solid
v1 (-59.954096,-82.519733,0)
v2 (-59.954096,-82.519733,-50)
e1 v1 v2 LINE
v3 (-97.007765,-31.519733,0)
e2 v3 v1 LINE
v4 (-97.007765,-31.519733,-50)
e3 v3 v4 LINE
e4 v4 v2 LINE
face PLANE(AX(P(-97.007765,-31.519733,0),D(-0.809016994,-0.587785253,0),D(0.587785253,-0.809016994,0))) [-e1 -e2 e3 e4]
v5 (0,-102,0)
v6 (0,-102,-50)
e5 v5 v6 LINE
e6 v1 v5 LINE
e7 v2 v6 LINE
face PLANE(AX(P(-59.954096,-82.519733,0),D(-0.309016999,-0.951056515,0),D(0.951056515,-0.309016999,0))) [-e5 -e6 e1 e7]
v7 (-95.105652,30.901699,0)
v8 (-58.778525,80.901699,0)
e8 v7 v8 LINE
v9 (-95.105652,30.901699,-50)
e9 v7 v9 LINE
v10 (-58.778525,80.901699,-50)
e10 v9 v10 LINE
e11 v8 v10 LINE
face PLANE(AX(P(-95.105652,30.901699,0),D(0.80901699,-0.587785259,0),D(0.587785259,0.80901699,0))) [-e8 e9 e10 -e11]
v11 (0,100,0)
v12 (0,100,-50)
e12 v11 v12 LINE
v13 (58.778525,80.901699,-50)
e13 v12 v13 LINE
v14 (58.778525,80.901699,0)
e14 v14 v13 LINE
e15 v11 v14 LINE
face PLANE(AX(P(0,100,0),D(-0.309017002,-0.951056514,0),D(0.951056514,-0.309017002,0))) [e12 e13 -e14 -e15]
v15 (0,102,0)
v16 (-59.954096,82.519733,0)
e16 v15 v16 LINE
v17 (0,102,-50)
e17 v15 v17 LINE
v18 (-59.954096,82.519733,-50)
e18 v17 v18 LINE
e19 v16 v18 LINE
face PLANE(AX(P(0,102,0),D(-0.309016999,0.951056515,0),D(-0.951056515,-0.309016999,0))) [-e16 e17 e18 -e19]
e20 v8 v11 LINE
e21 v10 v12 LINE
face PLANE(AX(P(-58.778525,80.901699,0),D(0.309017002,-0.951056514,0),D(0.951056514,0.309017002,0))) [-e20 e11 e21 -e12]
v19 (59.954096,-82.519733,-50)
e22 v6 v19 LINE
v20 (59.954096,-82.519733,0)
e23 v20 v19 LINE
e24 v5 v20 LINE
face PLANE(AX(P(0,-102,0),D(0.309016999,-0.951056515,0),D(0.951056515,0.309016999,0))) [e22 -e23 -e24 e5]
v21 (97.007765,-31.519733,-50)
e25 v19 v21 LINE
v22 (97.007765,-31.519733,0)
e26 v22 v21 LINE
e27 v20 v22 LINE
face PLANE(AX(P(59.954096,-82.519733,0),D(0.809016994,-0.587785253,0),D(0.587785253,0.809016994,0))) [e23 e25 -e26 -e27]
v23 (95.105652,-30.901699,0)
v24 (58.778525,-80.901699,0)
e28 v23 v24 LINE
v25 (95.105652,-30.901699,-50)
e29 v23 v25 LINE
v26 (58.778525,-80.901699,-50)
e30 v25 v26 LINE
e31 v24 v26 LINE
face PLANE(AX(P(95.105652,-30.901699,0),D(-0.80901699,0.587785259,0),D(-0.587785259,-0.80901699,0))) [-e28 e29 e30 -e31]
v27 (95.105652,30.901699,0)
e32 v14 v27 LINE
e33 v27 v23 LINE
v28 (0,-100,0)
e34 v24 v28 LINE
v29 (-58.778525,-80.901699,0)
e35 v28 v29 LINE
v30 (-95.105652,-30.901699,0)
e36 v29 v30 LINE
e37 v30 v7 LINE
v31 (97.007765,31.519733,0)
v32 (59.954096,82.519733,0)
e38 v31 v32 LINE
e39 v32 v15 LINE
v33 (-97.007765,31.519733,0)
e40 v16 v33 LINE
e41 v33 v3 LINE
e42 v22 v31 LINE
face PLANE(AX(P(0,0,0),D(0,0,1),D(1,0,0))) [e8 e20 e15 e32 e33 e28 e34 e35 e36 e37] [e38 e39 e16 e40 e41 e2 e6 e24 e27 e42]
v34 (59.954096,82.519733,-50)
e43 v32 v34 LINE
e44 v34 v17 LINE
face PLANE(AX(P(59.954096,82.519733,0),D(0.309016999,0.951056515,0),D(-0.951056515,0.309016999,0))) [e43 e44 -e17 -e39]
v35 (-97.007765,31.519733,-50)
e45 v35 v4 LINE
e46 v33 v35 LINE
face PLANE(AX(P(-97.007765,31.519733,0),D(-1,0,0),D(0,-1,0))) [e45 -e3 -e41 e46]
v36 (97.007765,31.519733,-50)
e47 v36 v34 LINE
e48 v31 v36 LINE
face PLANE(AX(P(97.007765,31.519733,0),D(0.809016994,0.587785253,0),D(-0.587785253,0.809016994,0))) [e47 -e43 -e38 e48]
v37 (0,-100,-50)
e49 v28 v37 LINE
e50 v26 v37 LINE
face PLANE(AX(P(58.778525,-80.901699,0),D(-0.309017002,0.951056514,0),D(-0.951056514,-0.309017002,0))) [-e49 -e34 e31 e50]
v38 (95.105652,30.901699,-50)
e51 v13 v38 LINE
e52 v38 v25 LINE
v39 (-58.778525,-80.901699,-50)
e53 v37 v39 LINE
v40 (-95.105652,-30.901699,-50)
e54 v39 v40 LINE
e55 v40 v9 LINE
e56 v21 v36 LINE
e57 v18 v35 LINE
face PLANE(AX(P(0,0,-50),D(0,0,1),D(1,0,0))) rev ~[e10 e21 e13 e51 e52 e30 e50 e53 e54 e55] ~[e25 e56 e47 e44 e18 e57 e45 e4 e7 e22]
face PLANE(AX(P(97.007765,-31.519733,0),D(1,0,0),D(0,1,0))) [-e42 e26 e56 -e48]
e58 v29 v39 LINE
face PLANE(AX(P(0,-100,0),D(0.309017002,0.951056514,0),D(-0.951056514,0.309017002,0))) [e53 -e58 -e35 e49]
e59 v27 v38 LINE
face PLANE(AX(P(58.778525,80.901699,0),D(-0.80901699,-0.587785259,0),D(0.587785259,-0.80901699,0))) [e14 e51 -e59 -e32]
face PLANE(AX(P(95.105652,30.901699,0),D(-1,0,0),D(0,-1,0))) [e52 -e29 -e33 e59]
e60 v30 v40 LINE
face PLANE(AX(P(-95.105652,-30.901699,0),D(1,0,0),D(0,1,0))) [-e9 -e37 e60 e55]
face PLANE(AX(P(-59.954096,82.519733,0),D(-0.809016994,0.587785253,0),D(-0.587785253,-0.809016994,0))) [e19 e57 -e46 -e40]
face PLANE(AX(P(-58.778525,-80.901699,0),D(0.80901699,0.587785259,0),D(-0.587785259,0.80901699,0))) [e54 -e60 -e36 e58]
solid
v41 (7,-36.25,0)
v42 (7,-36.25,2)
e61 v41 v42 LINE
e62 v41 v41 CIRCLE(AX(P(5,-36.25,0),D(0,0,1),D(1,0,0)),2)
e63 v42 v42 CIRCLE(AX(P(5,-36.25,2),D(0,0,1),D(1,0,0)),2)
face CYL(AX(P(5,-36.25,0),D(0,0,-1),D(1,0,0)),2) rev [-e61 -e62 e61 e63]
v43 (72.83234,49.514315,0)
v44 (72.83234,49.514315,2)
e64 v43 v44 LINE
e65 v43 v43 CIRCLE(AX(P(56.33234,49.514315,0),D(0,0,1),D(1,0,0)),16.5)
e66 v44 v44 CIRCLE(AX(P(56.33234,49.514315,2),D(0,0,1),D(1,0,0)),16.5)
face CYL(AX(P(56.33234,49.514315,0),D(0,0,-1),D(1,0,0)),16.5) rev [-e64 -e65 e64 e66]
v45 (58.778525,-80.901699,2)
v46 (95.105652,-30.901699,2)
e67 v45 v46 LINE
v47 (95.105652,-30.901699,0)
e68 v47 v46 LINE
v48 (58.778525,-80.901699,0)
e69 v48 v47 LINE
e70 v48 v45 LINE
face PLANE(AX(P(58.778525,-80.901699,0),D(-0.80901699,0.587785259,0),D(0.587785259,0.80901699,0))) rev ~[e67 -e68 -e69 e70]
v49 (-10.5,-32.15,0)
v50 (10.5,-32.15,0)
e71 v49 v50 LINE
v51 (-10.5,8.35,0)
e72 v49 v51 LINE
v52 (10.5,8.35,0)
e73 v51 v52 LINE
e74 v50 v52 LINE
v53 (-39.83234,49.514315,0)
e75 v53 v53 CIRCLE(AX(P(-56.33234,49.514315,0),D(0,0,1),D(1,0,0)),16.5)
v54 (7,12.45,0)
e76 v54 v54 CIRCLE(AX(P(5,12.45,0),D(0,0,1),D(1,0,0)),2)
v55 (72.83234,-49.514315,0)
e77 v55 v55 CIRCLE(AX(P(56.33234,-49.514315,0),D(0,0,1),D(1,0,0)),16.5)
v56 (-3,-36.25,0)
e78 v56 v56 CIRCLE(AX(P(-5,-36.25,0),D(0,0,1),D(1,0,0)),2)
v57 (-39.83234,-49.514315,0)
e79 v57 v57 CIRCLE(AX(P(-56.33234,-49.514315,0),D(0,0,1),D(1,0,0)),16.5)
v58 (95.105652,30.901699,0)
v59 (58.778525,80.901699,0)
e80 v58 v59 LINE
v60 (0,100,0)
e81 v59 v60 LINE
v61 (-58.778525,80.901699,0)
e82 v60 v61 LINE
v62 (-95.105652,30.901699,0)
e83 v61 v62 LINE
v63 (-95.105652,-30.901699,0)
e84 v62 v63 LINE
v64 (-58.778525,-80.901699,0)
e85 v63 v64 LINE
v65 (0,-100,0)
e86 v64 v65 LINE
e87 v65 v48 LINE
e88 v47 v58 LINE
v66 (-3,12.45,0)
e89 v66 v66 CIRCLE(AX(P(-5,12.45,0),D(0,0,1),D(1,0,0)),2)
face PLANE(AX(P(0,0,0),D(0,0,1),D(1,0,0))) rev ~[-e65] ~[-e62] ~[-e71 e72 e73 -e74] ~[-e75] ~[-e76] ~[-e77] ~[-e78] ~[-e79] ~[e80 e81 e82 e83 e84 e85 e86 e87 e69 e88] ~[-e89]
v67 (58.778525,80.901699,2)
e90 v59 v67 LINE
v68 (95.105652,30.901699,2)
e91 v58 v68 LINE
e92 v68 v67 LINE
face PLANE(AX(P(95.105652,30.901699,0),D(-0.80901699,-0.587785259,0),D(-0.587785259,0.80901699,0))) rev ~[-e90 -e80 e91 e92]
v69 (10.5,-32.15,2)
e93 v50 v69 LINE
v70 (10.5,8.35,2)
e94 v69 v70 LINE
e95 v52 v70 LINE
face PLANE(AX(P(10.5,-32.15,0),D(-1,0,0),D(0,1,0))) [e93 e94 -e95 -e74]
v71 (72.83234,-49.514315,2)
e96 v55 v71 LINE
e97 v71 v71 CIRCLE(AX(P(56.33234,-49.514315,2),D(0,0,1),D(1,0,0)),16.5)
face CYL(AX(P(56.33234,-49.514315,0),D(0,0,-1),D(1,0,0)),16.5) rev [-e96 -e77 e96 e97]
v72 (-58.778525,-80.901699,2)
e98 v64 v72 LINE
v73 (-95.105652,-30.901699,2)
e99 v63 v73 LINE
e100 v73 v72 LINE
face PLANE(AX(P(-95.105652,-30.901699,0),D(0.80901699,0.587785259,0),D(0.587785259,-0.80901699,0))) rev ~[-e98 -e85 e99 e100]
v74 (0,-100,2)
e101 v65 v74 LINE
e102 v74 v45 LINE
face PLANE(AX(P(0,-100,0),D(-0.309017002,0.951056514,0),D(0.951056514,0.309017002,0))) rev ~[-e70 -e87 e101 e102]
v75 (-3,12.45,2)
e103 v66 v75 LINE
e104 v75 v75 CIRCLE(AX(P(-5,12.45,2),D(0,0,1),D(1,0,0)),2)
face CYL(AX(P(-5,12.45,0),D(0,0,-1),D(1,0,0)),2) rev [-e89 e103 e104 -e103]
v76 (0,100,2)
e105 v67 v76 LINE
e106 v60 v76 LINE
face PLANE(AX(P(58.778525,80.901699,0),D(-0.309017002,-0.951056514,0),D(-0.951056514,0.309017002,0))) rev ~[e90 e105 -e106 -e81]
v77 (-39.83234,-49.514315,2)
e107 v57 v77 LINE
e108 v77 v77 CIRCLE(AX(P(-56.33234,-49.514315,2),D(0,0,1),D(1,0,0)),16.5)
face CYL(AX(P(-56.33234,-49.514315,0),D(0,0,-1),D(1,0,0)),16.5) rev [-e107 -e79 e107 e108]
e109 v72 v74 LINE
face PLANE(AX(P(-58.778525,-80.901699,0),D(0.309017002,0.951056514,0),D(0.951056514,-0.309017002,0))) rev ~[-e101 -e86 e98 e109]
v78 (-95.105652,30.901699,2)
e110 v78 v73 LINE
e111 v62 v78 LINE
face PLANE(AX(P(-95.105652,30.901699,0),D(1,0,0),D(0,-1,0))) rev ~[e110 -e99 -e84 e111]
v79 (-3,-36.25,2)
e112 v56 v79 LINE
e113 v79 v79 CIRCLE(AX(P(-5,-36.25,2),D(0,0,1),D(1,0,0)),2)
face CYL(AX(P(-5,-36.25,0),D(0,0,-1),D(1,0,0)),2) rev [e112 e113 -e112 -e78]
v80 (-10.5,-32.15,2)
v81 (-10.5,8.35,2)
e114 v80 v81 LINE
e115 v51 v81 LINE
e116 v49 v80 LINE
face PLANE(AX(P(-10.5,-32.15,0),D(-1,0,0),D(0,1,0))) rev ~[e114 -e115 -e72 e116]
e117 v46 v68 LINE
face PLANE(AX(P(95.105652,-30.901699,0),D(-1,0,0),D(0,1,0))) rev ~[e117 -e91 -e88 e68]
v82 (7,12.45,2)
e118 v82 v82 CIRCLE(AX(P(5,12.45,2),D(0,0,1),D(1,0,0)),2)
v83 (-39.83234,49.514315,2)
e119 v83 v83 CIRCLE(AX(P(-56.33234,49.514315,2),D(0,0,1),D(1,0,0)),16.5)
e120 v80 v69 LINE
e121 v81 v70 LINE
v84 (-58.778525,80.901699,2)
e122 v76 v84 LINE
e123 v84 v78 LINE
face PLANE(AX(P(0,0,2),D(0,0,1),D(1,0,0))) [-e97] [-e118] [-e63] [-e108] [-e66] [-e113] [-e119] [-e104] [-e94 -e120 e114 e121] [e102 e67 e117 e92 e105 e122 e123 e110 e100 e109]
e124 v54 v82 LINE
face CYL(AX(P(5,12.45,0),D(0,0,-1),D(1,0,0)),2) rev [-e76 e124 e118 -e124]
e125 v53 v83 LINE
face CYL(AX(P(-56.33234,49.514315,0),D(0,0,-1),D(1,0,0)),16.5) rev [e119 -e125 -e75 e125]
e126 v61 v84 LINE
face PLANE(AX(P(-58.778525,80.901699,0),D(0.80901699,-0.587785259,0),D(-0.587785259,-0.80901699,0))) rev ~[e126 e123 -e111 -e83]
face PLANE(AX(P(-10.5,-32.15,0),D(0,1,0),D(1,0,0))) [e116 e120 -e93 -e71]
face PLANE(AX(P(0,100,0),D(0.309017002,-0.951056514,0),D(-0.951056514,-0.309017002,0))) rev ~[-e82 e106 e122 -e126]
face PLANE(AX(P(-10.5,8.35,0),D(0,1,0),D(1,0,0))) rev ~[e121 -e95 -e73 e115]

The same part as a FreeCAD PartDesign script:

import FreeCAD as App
import Part
import Sketcher

V = App.Vector
Q = App.Units.Quantity

doc = App.newDocument("Part")
body = doc.addObject("PartDesign::Body", "Body")

sketch1 = body.newObject("Sketcher::SketchObject", "Sketch")
sketch1.AttachmentSupport = (doc.getObject("XY_Plane"), [""])
sketch1.MapMode = "FlatFace"
sketch1.addGeometry([
    Part.LineSegment(V(58.8, 80.9, 0), V(0, 100, 0)),
    Part.LineSegment(V(0, 100, 0), V(-58.8, 80.9, 0)),
    Part.LineSegment(V(-58.8, 80.9, 0), V(-95.1, 30.9, 0)),
    Part.LineSegment(V(-95.1, 30.9, 0), V(-95.1, -30.9, 0)),
    Part.LineSegment(V(-95.1, -30.9, 0), V(-58.8, -80.9, 0)),
    Part.LineSegment(V(-58.8, -80.9, 0), V(0, -100, 0)),
    Part.LineSegment(V(0, -100, 0), V(58.8, -80.9, 0)),
    Part.LineSegment(V(58.8, -80.9, 0), V(95.1, -30.9, 0)),
    Part.LineSegment(V(95.1, -30.9, 0), V(95.1, 30.9, 0)),
    Part.LineSegment(V(95.1, 30.9, 0), V(58.8, 80.9, 0)),
    Part.Circle(V(-56.3, -49.5, 0), V(0, 0, 1), 16.5),
    Part.Circle(V(-5, -36.2, 0), V(0, 0, 1), 2),
    Part.LineSegment(V(10.5, -32.1, 0), V(-10.5, -32.1, 0)),
    Part.LineSegment(V(-10.5, -32.1, 0), V(-10.5, 8.3, 0)),
    Part.LineSegment(V(-10.5, 8.3, 0), V(10.5, 8.3, 0)),
    Part.LineSegment(V(10.5, 8.3, 0), V(10.5, -32.1, 0)),
    Part.Circle(V(5, -36.2, 0), V(0, 0, 1), 2),
    Part.Circle(V(56.3, -49.5, 0), V(0, 0, 1), 16.5),
    Part.Circle(V(-5, 12.4, 0), V(0, 0, 1), 2),
    Part.Circle(V(-56.3, 49.5, 0), V(0, 0, 1), 16.5),
    Part.Circle(V(5, 12.4, 0), V(0, 0, 1), 2),
    Part.Circle(V(56.3, 49.5, 0), V(0, 0, 1), 16.5),
], False)
sketch1.addConstraint([
    Sketcher.Constraint("Coincident", 0, 2, 1, 1),
    Sketcher.Constraint("Coincident", 1, 2, 2, 1),
    Sketcher.Constraint("Coincident", 2, 2, 3, 1),
    Sketcher.Constraint("Coincident", 3, 2, 4, 1),
    Sketcher.Constraint("Coincident", 4, 2, 5, 1),
    Sketcher.Constraint("Coincident", 5, 2, 6, 1),
    Sketcher.Constraint("Coincident", 6, 2, 7, 1),
    Sketcher.Constraint("Coincident", 7, 2, 8, 1),
    Sketcher.Constraint("Coincident", 8, 2, 9, 1),
    Sketcher.Constraint("Coincident", 9, 2, 0, 1),
    Sketcher.Constraint("Coincident", 12, 2, 13, 1),
    Sketcher.Constraint("Coincident", 13, 2, 14, 1),
    Sketcher.Constraint("Coincident", 14, 2, 15, 1),
    Sketcher.Constraint("Coincident", 15, 2, 12, 1),
    Sketcher.Constraint("Vertical", 3),
    Sketcher.Constraint("Vertical", 8),
    Sketcher.Constraint("Horizontal", 12),
    Sketcher.Constraint("Vertical", 13),
    Sketcher.Constraint("Horizontal", 14),
    Sketcher.Constraint("Vertical", 15),
    Sketcher.Constraint("Equal", 11, 16),
    Sketcher.Constraint("Equal", 10, 17),
    Sketcher.Constraint("Equal", 16, 18),
    Sketcher.Constraint("Equal", 17, 19),
    Sketcher.Constraint("Equal", 18, 20),
    Sketcher.Constraint("Equal", 19, 21),
    Sketcher.Constraint("Symmetric", 17, 3, 19, 3, -1, 1),
    Sketcher.Constraint("Symmetric", 10, 3, 21, 3, -1, 1),
    Sketcher.Constraint("Symmetric", 0, 2, 5, 2, -1, 1),
    Sketcher.Constraint("Symmetric", 1, 2, 6, 2, -1, 1),
    Sketcher.Constraint("Symmetric", 2, 2, 7, 2, -1, 1),
    Sketcher.Constraint("Symmetric", 4, 2, 9, 2, -1, 1),
    Sketcher.Constraint("Symmetric", 11, 3, 16, 3, -2),
    Sketcher.Constraint("Symmetric", 10, 3, 17, 3, -2),
    Sketcher.Constraint("Symmetric", 18, 3, 20, 3, -2),
    Sketcher.Constraint("Symmetric", 4, 2, 6, 2, -2),
    Sketcher.Constraint("PointOnObject", 0, 2, -2),
    Sketcher.Constraint("Parallel", 4, 9),
    Sketcher.Constraint("Horizontal", 3, 2, 7, 2),
    Sketcher.Constraint("Vertical", 11, 3, 18, 3),
    Sketcher.Constraint("Equal", 1, 2),
    Sketcher.Constraint("Diameter", 10, 33.0),
    Sketcher.Constraint("Diameter", 11, 4.0),
    Sketcher.Constraint("DistanceX", 12, 2, 12, 1, 21.0),
    Sketcher.Constraint("Angle", 0, Q("162 deg")),
    Sketcher.Constraint("Angle", 2, Q("-126 deg")),
    Sketcher.Constraint("DistanceY", 13, 1, 13, 2, 40.5),
    Sketcher.Constraint("DistanceX", 11, 3, -1, 1, 5.0),
    Sketcher.Constraint("DistanceY", -1, 1, 0, 2, 100.0),
    Sketcher.Constraint("DistanceY", 2, 2, 1, 2, 50.0),
    Sketcher.Constraint("DistanceX", 12, 2, -1, 1, 10.5),
    Sketcher.Constraint("DistanceY", 11, 3, 18, 3, 48.7),
    Sketcher.Constraint("DistanceY", 11, 3, 12, 2, 4.1),
    Sketcher.Constraint("DistanceY", 11, 3, -1, 1, 36.25),
    Sketcher.Constraint("DistanceX", 10, 3, -1, 1, 56.33234),
    Sketcher.Constraint("DistanceY", 10, 3, 19, 3, 99.02863),
])
pad1 = body.newObject("PartDesign::Pad", "Pad")
pad1.Profile = sketch1
pad1.Length = 2
body2 = doc.addObject("PartDesign::Body", "Body001")

sketch2 = body2.newObject("Sketcher::SketchObject", "Sketch001")
sketch2.AttachmentSupport = (doc.getObject("XY_Plane001"), [""])
sketch2.MapMode = "FlatFace"
sketch2.addGeometry([
    Part.LineSegment(V(60, 83, 0), V(0, 102, 0)),
    Part.LineSegment(V(0, 102, 0), V(-60, 83, 0)),
    Part.LineSegment(V(-60, 83, 0), V(-97, 32, 0)),
    Part.LineSegment(V(-97, 32, 0), V(-97, -32, 0)),
    Part.LineSegment(V(-97, -32, 0), V(-60, -83, 0)),
    Part.LineSegment(V(-60, -83, 0), V(0, -102, 0)),
    Part.LineSegment(V(0, -102, 0), V(60, -83, 0)),
    Part.LineSegment(V(60, -83, 0), V(97, -32, 0)),
    Part.LineSegment(V(97, -32, 0), V(97, 32, 0)),
    Part.LineSegment(V(97, 32, 0), V(60, 83, 0)),
    Part.LineSegment(V(-95, 31, 0), V(-59, 81, 0)),
    Part.LineSegment(V(-59, 81, 0), V(0, 100, 0)),
    Part.LineSegment(V(0, 100, 0), V(59, 81, 0)),
    Part.LineSegment(V(59, 81, 0), V(95, 31, 0)),
    Part.LineSegment(V(95, 31, 0), V(95, -31, 0)),
    Part.LineSegment(V(95, -31, 0), V(59, -81, 0)),
    Part.LineSegment(V(59, -81, 0), V(0, -100, 0)),
    Part.LineSegment(V(0, -100, 0), V(-59, -81, 0)),
    Part.LineSegment(V(-59, -81, 0), V(-95, -31, 0)),
    Part.LineSegment(V(-95, -31, 0), V(-95, 31, 0)),
], False)
sketch2.addConstraint([
    Sketcher.Constraint("Coincident", 0, 2, 1, 1),
    Sketcher.Constraint("Coincident", 1, 2, 2, 1),
    Sketcher.Constraint("Coincident", 2, 2, 3, 1),
    Sketcher.Constraint("Coincident", 3, 2, 4, 1),
    Sketcher.Constraint("Coincident", 4, 2, 5, 1),
    Sketcher.Constraint("Coincident", 5, 2, 6, 1),
    Sketcher.Constraint("Coincident", 6, 2, 7, 1),
    Sketcher.Constraint("Coincident", 7, 2, 8, 1),
    Sketcher.Constraint("Coincident", 8, 2, 9, 1),
    Sketcher.Constraint("Coincident", 9, 2, 0, 1),
    Sketcher.Constraint("Coincident", 10, 2, 11, 1),
    Sketcher.Constraint("Coincident", 11, 2, 12, 1),
    Sketcher.Constraint("Coincident", 12, 2, 13, 1),
    Sketcher.Constraint("Coincident", 13, 2, 14, 1),
    Sketcher.Constraint("Coincident", 14, 2, 15, 1),
    Sketcher.Constraint("Coincident", 15, 2, 16, 1),
    Sketcher.Constraint("Coincident", 16, 2, 17, 1),
    Sketcher.Constraint("Coincident", 17, 2, 18, 1),
    Sketcher.Constraint("Coincident", 18, 2, 19, 1),
    Sketcher.Constraint("Coincident", 19, 2, 10, 1),
    Sketcher.Constraint("Vertical", 3),
    Sketcher.Constraint("Vertical", 8),
    Sketcher.Constraint("Vertical", 14),
    Sketcher.Constraint("Vertical", 19),
    Sketcher.Constraint("Symmetric", 0, 2, 5, 2, -1, 1),
    Sketcher.Constraint("Symmetric", 1, 2, 6, 2, -1, 1),
    Sketcher.Constraint("Symmetric", 2, 2, 7, 2, -1, 1),
    Sketcher.Constraint("Symmetric", 4, 2, 9, 2, -1, 1),
    Sketcher.Constraint("Symmetric", 10, 2, 15, 2, -1, 1),
    Sketcher.Constraint("Symmetric", 11, 2, 16, 2, -1, 1),
    Sketcher.Constraint("Symmetric", 12, 2, 17, 2, -1, 1),
    Sketcher.Constraint("Symmetric", 13, 2, 18, 2, -1, 1),
    Sketcher.Constraint("Symmetric", 4, 2, 6, 2, -2),
    Sketcher.Constraint("Symmetric", 10, 2, 12, 2, -2),
    Sketcher.Constraint("PointOnObject", 0, 2, -2),
    Sketcher.Constraint("PointOnObject", 11, 2, -2),
    Sketcher.Constraint("Parallel", 4, 9),
    Sketcher.Constraint("Parallel", 7, 10),
    Sketcher.Constraint("Parallel", 6, 11),
    Sketcher.Constraint("Parallel", 9, 13),
    Sketcher.Constraint("Parallel", 10, 15),
    Sketcher.Constraint("Horizontal", 3, 2, 7, 2),
    Sketcher.Constraint("Equal", 1, 2),
    Sketcher.Constraint("Equal", 10, 11),
    Sketcher.Constraint("Angle", 0, Q("162 deg")),
    Sketcher.Constraint("Angle", 2, Q("-126 deg")),
    Sketcher.Constraint("DistanceY", -1, 1, 0, 2, 102.0),
    Sketcher.Constraint("DistanceY", -1, 1, 11, 2, 100.0),
    Sketcher.Constraint("DistanceY", 2, 2, 1, 2, 51.0),
    Sketcher.Constraint("DistanceY", 13, 2, 12, 2, 50.0),
])
pad2 = body2.newObject("PartDesign::Pad", "Pad001")
pad2.Profile = sketch2
pad2.Length = 50
pad2.Reversed = True

doc.recompute()
